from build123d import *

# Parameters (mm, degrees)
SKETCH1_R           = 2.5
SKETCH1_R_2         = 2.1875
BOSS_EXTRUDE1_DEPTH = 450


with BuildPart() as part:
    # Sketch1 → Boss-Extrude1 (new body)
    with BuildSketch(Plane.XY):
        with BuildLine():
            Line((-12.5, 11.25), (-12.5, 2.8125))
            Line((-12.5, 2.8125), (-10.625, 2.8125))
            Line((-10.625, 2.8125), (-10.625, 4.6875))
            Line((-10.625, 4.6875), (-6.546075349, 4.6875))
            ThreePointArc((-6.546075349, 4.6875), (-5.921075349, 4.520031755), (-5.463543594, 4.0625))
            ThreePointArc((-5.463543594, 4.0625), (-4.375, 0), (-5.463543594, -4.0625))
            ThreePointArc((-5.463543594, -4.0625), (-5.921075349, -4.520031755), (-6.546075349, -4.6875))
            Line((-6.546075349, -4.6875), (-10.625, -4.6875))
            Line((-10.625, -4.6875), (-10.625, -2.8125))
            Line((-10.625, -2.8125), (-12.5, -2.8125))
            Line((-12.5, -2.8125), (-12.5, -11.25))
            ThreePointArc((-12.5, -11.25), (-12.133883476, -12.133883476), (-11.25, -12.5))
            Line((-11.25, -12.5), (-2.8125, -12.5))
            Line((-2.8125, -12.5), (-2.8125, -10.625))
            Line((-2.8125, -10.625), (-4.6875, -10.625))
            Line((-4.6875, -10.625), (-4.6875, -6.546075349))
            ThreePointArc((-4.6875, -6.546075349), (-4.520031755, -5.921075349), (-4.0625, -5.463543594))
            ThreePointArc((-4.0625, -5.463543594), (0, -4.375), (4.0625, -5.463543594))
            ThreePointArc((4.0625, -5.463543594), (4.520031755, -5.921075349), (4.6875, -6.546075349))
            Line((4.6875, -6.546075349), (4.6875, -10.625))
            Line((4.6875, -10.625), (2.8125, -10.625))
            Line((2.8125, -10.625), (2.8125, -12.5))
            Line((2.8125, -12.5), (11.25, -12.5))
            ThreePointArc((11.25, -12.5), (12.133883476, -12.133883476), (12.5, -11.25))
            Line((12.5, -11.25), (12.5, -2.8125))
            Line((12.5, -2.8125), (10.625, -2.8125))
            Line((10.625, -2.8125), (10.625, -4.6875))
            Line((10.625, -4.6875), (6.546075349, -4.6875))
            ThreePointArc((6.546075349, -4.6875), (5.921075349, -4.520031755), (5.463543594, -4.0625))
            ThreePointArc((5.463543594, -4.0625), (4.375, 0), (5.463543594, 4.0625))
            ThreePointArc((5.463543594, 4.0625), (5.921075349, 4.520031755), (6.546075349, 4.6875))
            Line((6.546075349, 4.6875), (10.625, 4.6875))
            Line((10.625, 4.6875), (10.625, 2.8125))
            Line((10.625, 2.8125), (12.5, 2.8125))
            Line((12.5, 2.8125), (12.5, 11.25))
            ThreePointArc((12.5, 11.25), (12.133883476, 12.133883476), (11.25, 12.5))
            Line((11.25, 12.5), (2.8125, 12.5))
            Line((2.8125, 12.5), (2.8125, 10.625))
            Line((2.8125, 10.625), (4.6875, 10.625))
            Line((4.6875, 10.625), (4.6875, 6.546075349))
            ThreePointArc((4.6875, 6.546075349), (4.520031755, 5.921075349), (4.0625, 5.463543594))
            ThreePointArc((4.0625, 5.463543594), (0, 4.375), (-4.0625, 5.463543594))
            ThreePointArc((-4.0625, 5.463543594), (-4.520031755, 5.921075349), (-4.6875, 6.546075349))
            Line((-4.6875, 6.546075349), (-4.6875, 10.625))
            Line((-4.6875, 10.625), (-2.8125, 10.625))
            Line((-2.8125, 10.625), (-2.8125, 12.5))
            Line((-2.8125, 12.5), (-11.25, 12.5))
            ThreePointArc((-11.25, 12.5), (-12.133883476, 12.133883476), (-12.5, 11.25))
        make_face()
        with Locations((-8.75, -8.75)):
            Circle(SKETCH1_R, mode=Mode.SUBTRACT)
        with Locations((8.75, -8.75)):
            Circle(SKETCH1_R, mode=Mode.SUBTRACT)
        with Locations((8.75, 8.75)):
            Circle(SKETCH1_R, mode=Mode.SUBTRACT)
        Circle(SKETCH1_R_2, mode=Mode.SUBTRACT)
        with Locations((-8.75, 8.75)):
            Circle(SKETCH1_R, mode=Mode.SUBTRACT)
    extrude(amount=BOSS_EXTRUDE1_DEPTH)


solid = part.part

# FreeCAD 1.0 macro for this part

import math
import FreeCAD as App
import Part
import Sketcher
from FreeCAD import Vector
Q = App.Units.Quantity

doc = App.newDocument("Part")
body = doc.addObject("PartDesign::Body", "Body")

sketch1 = body.newObject("Sketcher::SketchObject", "Sketch")
sketch1.AttachmentSupport = (doc.getObject("XY_Plane"), [""])
sketch1.MapMode = "FlatFace"
sketch1.addGeometry([
    Part.LineSegment(Vector(-12.5, 11.2, 0), Vector(-12.5, 2.8, 0)),
    Part.LineSegment(Vector(-12.5, 2.8, 0), Vector(-10.6, 2.8, 0)),
    Part.LineSegment(Vector(-10.6, 2.8, 0), Vector(-10.6, 4.7, 0)),
    Part.LineSegment(Vector(-10.6, 4.7, 0), Vector(-6.5, 4.7, 0)),
    Part.ArcOfCircle(Part.Circle(Vector(-6.5, 3.4, 0), Vector(0, 0, 1), 1.2), math.radians(30), math.radians(90)),
    Part.ArcOfCircle(Part.Circle(Vector(-12.5, 0, 0), Vector(0, 0, 1), 8.1), math.radians(-30), math.radians(30)),
    Part.ArcOfCircle(Part.Circle(Vector(-6.5, -3.4, 0), Vector(0, 0, 1), 1.2), math.radians(-90), math.radians(-30)),
    Part.LineSegment(Vector(-6.5, -4.7, 0), Vector(-10.6, -4.7, 0)),
    Part.LineSegment(Vector(-10.6, -4.7, 0), Vector(-10.6, -2.8, 0)),
    Part.LineSegment(Vector(-10.6, -2.8, 0), Vector(-12.5, -2.8, 0)),
    Part.LineSegment(Vector(-12.5, -2.8, 0), Vector(-12.5, -11.2, 0)),
    Part.ArcOfCircle(Part.Circle(Vector(-11.2, -11.2, 0), Vector(0, 0, 1), 1.3), math.radians(-180), math.radians(-90)),
    Part.LineSegment(Vector(-11.2, -12.5, 0), Vector(-2.8, -12.5, 0)),
    Part.LineSegment(Vector(-2.8, -12.5, 0), Vector(-2.8, -10.6, 0)),
    Part.LineSegment(Vector(-2.8, -10.6, 0), Vector(-4.7, -10.6, 0)),
    Part.LineSegment(Vector(-4.7, -10.6, 0), Vector(-4.7, -6.5, 0)),
    Part.ArcOfCircle(Part.Circle(Vector(-3.4, -6.5, 0), Vector(0, 0, 1), 1.2), math.radians(120), math.radians(180)),
    Part.ArcOfCircle(Part.Circle(Vector(0, -12.5, 0), Vector(0, 0, 1), 8.1), math.radians(60), math.radians(120)),
    Part.ArcOfCircle(Part.Circle(Vector(3.4, -6.5, 0), Vector(0, 0, 1), 1.2), math.radians(0), math.radians(60)),
    Part.LineSegment(Vector(4.7, -6.5, 0), Vector(4.7, -10.6, 0)),
    Part.LineSegment(Vector(4.7, -10.6, 0), Vector(2.8, -10.6, 0)),
    Part.LineSegment(Vector(2.8, -10.6, 0), Vector(2.8, -12.5, 0)),
    Part.LineSegment(Vector(2.8, -12.5, 0), Vector(11.2, -12.5, 0)),
    Part.ArcOfCircle(Part.Circle(Vector(11.2, -11.2, 0), Vector(0, 0, 1), 1.3), math.radians(-90), math.radians(0)),
    Part.LineSegment(Vector(12.5, -11.2, 0), Vector(12.5, -2.8, 0)),
    Part.LineSegment(Vector(12.5, -2.8, 0), Vector(10.6, -2.8, 0)),
    Part.LineSegment(Vector(10.6, -2.8, 0), Vector(10.6, -4.7, 0)),
    Part.LineSegment(Vector(10.6, -4.7, 0), Vector(6.5, -4.7, 0)),
    Part.ArcOfCircle(Part.Circle(Vector(6.5, -3.4, 0), Vector(0, 0, 1), 1.2), math.radians(-150), math.radians(-90)),
    Part.ArcOfCircle(Part.Circle(Vector(12.5, 0, 0), Vector(0, 0, 1), 8.1), math.radians(150), math.radians(210)),
    Part.ArcOfCircle(Part.Circle(Vector(6.5, 3.4, 0), Vector(0, 0, 1), 1.2), math.radians(90), math.radians(150)),
    Part.LineSegment(Vector(6.5, 4.7, 0), Vector(10.6, 4.7, 0)),
    Part.LineSegment(Vector(10.6, 4.7, 0), Vector(10.6, 2.8, 0)),
    Part.LineSegment(Vector(10.6, 2.8, 0), Vector(12.5, 2.8, 0)),
    Part.LineSegment(Vector(12.5, 2.8, 0), Vector(12.5, 11.2, 0)),
    Part.ArcOfCircle(Part.Circle(Vector(11.2, 11.2, 0), Vector(0, 0, 1), 1.3), math.radians(0), math.radians(90)),
    Part.LineSegment(Vector(11.2, 12.5, 0), Vector(2.8, 12.5, 0)),
    Part.LineSegment(Vector(2.8, 12.5, 0), Vector(2.8, 10.6, 0)),
    Part.LineSegment(Vector(2.8, 10.6, 0), Vector(4.7, 10.6, 0)),
    Part.LineSegment(Vector(4.7, 10.6, 0), Vector(4.7, 6.5, 0)),
    Part.ArcOfCircle(Part.Circle(Vector(3.4, 6.5, 0), Vector(0, 0, 1), 1.2), math.radians(-60), math.radians(0)),
    Part.ArcOfCircle(Part.Circle(Vector(0, 12.5, 0), Vector(0, 0, 1), 8.1), math.radians(-120), math.radians(-60)),
    Part.ArcOfCircle(Part.Circle(Vector(-3.4, 6.5, 0), Vector(0, 0, 1), 1.2), math.radians(180), math.radians(240)),
    Part.LineSegment(Vector(-4.7, 6.5, 0), Vector(-4.7, 10.6, 0)),
    Part.LineSegment(Vector(-4.7, 10.6, 0), Vector(-2.8, 10.6, 0)),
    Part.LineSegment(Vector(-2.8, 10.6, 0), Vector(-2.8, 12.5, 0)),
    Part.LineSegment(Vector(-2.8, 12.5, 0), Vector(-11.2, 12.5, 0)),
    Part.ArcOfCircle(Part.Circle(Vector(-11.2, 11.2, 0), Vector(0, 0, 1), 1.3), math.radians(90), math.radians(180)),
    Part.Circle(Vector(-8.8, -8.8, 0), Vector(0, 0, 1), 2.5),
    Part.Circle(Vector(8.8, -8.8, 0), Vector(0, 0, 1), 2.5),
    Part.Circle(Vector(-8.8, 8.8, 0), Vector(0, 0, 1), 2.5),
    Part.Circle(Vector(0, 0, 0), Vector(0, 0, 1), 2.2),
    Part.Circle(Vector(8.8, 8.8, 0), Vector(0, 0, 1), 2.5),
], False)
sketch1.addConstraint([
    Sketcher.Constraint("Coincident", 0, 2, 1, 1),
    Sketcher.Constraint("Coincident", 1, 2, 2, 1),
    Sketcher.Constraint("Coincident", 2, 2, 3, 1),
    Sketcher.Constraint("Tangent", 3, 2, 4, 2),
    Sketcher.Constraint("Tangent", 4, 1, 5, 2),
    Sketcher.Constraint("Tangent", 5, 1, 6, 2),
    Sketcher.Constraint("Tangent", 6, 1, 7, 1),
    Sketcher.Constraint("Coincident", 7, 2, 8, 1),
    Sketcher.Constraint("Coincident", 8, 2, 9, 1),
    Sketcher.Constraint("Coincident", 9, 2, 10, 1),
    Sketcher.Constraint("Tangent", 10, 2, 11, 1),
    Sketcher.Constraint("Tangent", 11, 2, 12, 1),
    Sketcher.Constraint("Coincident", 12, 2, 13, 1),
    Sketcher.Constraint("Coincident", 13, 2, 14, 1),
    Sketcher.Constraint("Coincident", 14, 2, 15, 1),
    Sketcher.Constraint("Tangent", 15, 2, 16, 2),
    Sketcher.Constraint("Tangent", 16, 1, 17, 2),
    Sketcher.Constraint("Tangent", 17, 1, 18, 2),
    Sketcher.Constraint("Tangent", 18, 1, 19, 1),
    Sketcher.Constraint("Coincident", 19, 2, 20, 1),
    Sketcher.Constraint("Coincident", 20, 2, 21, 1),
    Sketcher.Constraint("Coincident", 21, 2, 22, 1),
    Sketcher.Constraint("Tangent", 22, 2, 23, 1),
    Sketcher.Constraint("Tangent", 23, 2, 24, 1),
    Sketcher.Constraint("Coincident", 24, 2, 25, 1),
    Sketcher.Constraint("Coincident", 25, 2, 26, 1),
    Sketcher.Constraint("Coincident", 26, 2, 27, 1),
    Sketcher.Constraint("Tangent", 27, 2, 28, 2),
    Sketcher.Constraint("Tangent", 28, 1, 29, 2),
    Sketcher.Constraint("Tangent", 29, 1, 30, 2),
    Sketcher.Constraint("Tangent", 30, 1, 31, 1),
    Sketcher.Constraint("Coincident", 31, 2, 32, 1),
    Sketcher.Constraint("Coincident", 32, 2, 33, 1),
    Sketcher.Constraint("Coincident", 33, 2, 34, 1),
    Sketcher.Constraint("Tangent", 34, 2, 35, 1),
    Sketcher.Constraint("Tangent", 35, 2, 36, 1),
    Sketcher.Constraint("Coincident", 36, 2, 37, 1),
    Sketcher.Constraint("Coincident", 37, 2, 38, 1),
    Sketcher.Constraint("Coincident", 38, 2, 39, 1),
    Sketcher.Constraint("Tangent", 39, 2, 40, 2),
    Sketcher.Constraint("Tangent", 40, 1, 41, 2),
    Sketcher.Constraint("Tangent", 41, 1, 42, 2),
    Sketcher.Constraint("Tangent", 42, 1, 43, 1),
    Sketcher.Constraint("Coincident", 43, 2, 44, 1),
    Sketcher.Constraint("Coincident", 44, 2, 45, 1),
    Sketcher.Constraint("Coincident", 45, 2, 46, 1),
    Sketcher.Constraint("Tangent", 46, 2, 47, 1),
    Sketcher.Constraint("Tangent", 47, 2, 0, 1),
    Sketcher.Constraint("Vertical", 0),
    Sketcher.Constraint("Horizontal", 1),
    Sketcher.Constraint("Vertical", 2),
    Sketcher.Constraint("Horizontal", 3),
    Sketcher.Constraint("Horizontal", 7),
    Sketcher.Constraint("Vertical", 8),
    Sketcher.Constraint("Horizontal", 9),
    Sketcher.Constraint("Vertical", 10),
    Sketcher.Constraint("Horizontal", 12),
    Sketcher.Constraint("Vertical", 13),
    Sketcher.Constraint("Horizontal", 14),
    Sketcher.Constraint("Vertical", 15),
    Sketcher.Constraint("Vertical", 19),
    Sketcher.Constraint("Horizontal", 20),
    Sketcher.Constraint("Vertical", 21),
    Sketcher.Constraint("Horizontal", 22),
    Sketcher.Constraint("Vertical", 24),
    Sketcher.Constraint("Horizontal", 25),
    Sketcher.Constraint("Vertical", 26),
    Sketcher.Constraint("Horizontal", 27),
    Sketcher.Constraint("Horizontal", 31),
    Sketcher.Constraint("Vertical", 32),
    Sketcher.Constraint("Horizontal", 33),
    Sketcher.Constraint("Vertical", 34),
    Sketcher.Constraint("Horizontal", 36),
    Sketcher.Constraint("Vertical", 37),
    Sketcher.Constraint("Horizontal", 38),
    Sketcher.Constraint("Vertical", 39),
    Sketcher.Constraint("Vertical", 43),
    Sketcher.Constraint("Horizontal", 44),
    Sketcher.Constraint("Vertical", 45),
    Sketcher.Constraint("Horizontal", 46),
    Sketcher.Constraint("Coincident", 51, 3, -1, 1),
    Sketcher.Constraint("Equal", 4, 6),
    Sketcher.Constraint("Equal", 6, 11),
    Sketcher.Constraint("Equal", 11, 16),
    Sketcher.Constraint("Equal", 5, 17),
    Sketcher.Constraint("Equal", 16, 18),
    Sketcher.Constraint("Equal", 18, 23),
    Sketcher.Constraint("Equal", 23, 28),
    Sketcher.Constraint("Equal", 17, 29),
    Sketcher.Constraint("Equal", 28, 30),
    Sketcher.Constraint("Equal", 30, 35),
    Sketcher.Constraint("Equal", 35, 40),
    Sketcher.Constraint("Equal", 29, 41),
    Sketcher.Constraint("Equal", 40, 42),
    Sketcher.Constraint("Equal", 42, 47),
    Sketcher.Constraint("Equal", 48, 49),
    Sketcher.Constraint("Equal", 49, 50),
    Sketcher.Constraint("Equal", 50, 52),
    Sketcher.Constraint("Symmetric", 4, 3, 28, 3, -1, 1),
    Sketcher.Constraint("Symmetric", 6, 3, 30, 3, -1, 1),
    Sketcher.Constraint("Symmetric", 11, 3, 35, 3, -1, 1),
    Sketcher.Constraint("Symmetric", 16, 3, 40, 3, -1, 1),
    Sketcher.Constraint("Symmetric", 18, 3, 42, 3, -1, 1),
    Sketcher.Constraint("Symmetric", 23, 3, 47, 3, -1, 1),
    Sketcher.Constraint("Symmetric", 49, 3, 50, 3, -1, 1),
    Sketcher.Constraint("Symmetric", 48, 3, 52, 3, -1, 1),
    Sketcher.Constraint("Symmetric", 1, 2, 25, 2, -1, 1),
    Sketcher.Constraint("Symmetric", 8, 2, 32, 2, -1, 1),
    Sketcher.Constraint("Symmetric", 13, 2, 37, 2, -1, 1),
    Sketcher.Constraint("Symmetric", 20, 2, 44, 2, -1, 1),
    Sketcher.Constraint("Symmetric", 16, 3, 18, 3, -2),
    Sketcher.Constraint("Symmetric", 11, 3, 23, 3, -2),
    Sketcher.Constraint("Symmetric", 6, 3, 28, 3, -2),
    Sketcher.Constraint("Symmetric", 48, 3, 49, 3, -2),
    Sketcher.Constraint("Symmetric", 13, 2, 20, 2, -2),
    Sketcher.Constraint("Symmetric", 8, 2, 25, 2, -2),
    Sketcher.Constraint("Horizontal", 17, 3, 11, 2),
    Sketcher.Constraint("Vertical", 5, 3, 0, 2),
    Sketcher.Constraint("Equal", 9, 14),
    Sketcher.Constraint("Equal", 46, 0),
    Sketcher.Constraint("Equal", 44, 2),
    Sketcher.Constraint("Equal", 8, 13),
    Sketcher.Constraint("Equal", 31, 15),
    Sketcher.Constraint("Diameter", 48, Q("5 mm")),
    Sketcher.Constraint("Radius", 4, Q("1.25 mm")),
    Sketcher.Constraint("Diameter", 51, Q("4.375 mm")),
    Sketcher.Constraint("Radius", 5, Q("8.125 mm")),
    Sketcher.Constraint("DistanceX", 5, 3, -1, 1, Q("12.5 mm")),
    Sketcher.Constraint("DistanceX", 1, 1, 1, 2, Q("1.875 mm")),
    Sketcher.Constraint("DistanceX", 48, 3, -1, 1, Q("8.75 mm")),
    Sketcher.Constraint("DistanceY", 48, 3, -1, 1, Q("8.75 mm")),
    Sketcher.Constraint("DistanceX", 12, 1, 12, 2, Q("8.4375 mm")),
])
pad1 = body.newObject("PartDesign::Pad", "Pad")
pad1.Profile = sketch1
pad1.Length = 450

doc.recompute()
